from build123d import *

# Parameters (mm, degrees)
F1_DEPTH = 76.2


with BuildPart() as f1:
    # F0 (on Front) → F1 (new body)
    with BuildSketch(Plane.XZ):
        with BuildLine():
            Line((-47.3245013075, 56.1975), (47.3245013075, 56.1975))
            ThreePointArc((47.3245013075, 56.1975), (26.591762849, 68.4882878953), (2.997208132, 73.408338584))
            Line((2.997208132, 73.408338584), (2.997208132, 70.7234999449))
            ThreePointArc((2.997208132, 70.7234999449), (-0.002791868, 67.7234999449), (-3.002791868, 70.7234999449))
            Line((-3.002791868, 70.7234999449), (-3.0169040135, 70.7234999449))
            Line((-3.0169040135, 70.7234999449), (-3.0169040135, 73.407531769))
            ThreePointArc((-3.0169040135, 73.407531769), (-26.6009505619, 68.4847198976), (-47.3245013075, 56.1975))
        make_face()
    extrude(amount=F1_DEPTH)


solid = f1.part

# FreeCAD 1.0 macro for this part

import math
import FreeCAD as App
import Part
import Sketcher
from FreeCAD import Vector
Q = App.Units.Quantity

doc = App.newDocument("Part")
body = doc.addObject("PartDesign::Body", "Body")

sketch1 = body.newObject("Sketcher::SketchObject", "Sketch")
sketch1.AttachmentSupport = (doc.getObject("XZ_Plane"), [""])
sketch1.MapMode = "FlatFace"
sketch1.addGeometry(Part.LineSegment(Vector(-47.325, 56.197, 0), Vector(47.325, 56.197, 0)), False)
sketch1.addGeometry(Part.ArcOfCircle(Part.Circle(Vector(0, 0, 0), Vector(0, 0, 1), 73.47), math.radians(50), math.radians(88)), False)
sketch1.addGeometry(Part.LineSegment(Vector(2.997, 73.408, 0), Vector(2.997, 70.723, 0)), False)
sketch1.addGeometry(Part.ArcOfCircle(Part.Circle(Vector(-0.003, 70.723, 0), Vector(0, 0, 1), 3), math.radians(180), math.radians(360)), False)
sketch1.addGeometry(Part.LineSegment(Vector(-3.003, 70.723, 0), Vector(-3.017, 70.723, 0)), False)
sketch1.addGeometry(Part.LineSegment(Vector(-3.017, 70.723, 0), Vector(-3.017, 73.408, 0)), False)
sketch1.addGeometry(Part.ArcOfCircle(Part.Circle(Vector(0, 0, 0), Vector(0, 0, 1), 73.469), math.radians(92), math.radians(130)), False)
sketch1.addConstraint(Sketcher.Constraint("Coincident", 0, 2, 1, 1))
sketch1.addConstraint(Sketcher.Constraint("Coincident", 1, 2, 2, 1))
sketch1.addConstraint(Sketcher.Constraint("Tangent", 2, 2, 3, 2))
sketch1.addConstraint(Sketcher.Constraint("Coincident", 3, 1, 4, 1))
sketch1.addConstraint(Sketcher.Constraint("Coincident", 4, 2, 5, 1))
sketch1.addConstraint(Sketcher.Constraint("Coincident", 5, 2, 6, 1))
sketch1.addConstraint(Sketcher.Constraint("Coincident", 6, 2, 0, 1))
sketch1.addConstraint(Sketcher.Constraint("Horizontal", 0))
sketch1.addConstraint(Sketcher.Constraint("Vertical", 2))
sketch1.addConstraint(Sketcher.Constraint("Horizontal", 4))
sketch1.addConstraint(Sketcher.Constraint("Vertical", 5))
sketch1.addConstraint(Sketcher.Constraint("Coincident", 1, 3, -1, 1))
sketch1.addConstraint(Sketcher.Constraint("Coincident", 6, 3, -1, 1))
sketch1.addConstraint(Sketcher.Constraint("Equal", 1, 6))
sketch1.addConstraint(Sketcher.Constraint("Horizontal", 2, 2, 3, 1))
sketch1.addConstraint(Sketcher.Constraint("Radius", 1, Q("2.8925 in")))
sketch1.addConstraint(Sketcher.Constraint("Radius", 3, 3.0))
sketch1.addConstraint(Sketcher.Constraint("DistanceY", -1, 1, 0, 2, Q("2.2125 in")))
sketch1.addConstraint(Sketcher.Constraint("DistanceY", 2, 2, 2, 1, 2.684839))
sketch1.addConstraint(Sketcher.Constraint("DistanceY", 5, 1, 5, 2, 2.684032))
sketch1.addConstraint(Sketcher.Constraint("DistanceY", -1, 1, 3, 3, 70.7235))
pad1 = body.newObject("PartDesign::Pad", "Pad")
pad1.Profile = sketch1
pad1.Length = Q("3 in")

doc.recompute()
